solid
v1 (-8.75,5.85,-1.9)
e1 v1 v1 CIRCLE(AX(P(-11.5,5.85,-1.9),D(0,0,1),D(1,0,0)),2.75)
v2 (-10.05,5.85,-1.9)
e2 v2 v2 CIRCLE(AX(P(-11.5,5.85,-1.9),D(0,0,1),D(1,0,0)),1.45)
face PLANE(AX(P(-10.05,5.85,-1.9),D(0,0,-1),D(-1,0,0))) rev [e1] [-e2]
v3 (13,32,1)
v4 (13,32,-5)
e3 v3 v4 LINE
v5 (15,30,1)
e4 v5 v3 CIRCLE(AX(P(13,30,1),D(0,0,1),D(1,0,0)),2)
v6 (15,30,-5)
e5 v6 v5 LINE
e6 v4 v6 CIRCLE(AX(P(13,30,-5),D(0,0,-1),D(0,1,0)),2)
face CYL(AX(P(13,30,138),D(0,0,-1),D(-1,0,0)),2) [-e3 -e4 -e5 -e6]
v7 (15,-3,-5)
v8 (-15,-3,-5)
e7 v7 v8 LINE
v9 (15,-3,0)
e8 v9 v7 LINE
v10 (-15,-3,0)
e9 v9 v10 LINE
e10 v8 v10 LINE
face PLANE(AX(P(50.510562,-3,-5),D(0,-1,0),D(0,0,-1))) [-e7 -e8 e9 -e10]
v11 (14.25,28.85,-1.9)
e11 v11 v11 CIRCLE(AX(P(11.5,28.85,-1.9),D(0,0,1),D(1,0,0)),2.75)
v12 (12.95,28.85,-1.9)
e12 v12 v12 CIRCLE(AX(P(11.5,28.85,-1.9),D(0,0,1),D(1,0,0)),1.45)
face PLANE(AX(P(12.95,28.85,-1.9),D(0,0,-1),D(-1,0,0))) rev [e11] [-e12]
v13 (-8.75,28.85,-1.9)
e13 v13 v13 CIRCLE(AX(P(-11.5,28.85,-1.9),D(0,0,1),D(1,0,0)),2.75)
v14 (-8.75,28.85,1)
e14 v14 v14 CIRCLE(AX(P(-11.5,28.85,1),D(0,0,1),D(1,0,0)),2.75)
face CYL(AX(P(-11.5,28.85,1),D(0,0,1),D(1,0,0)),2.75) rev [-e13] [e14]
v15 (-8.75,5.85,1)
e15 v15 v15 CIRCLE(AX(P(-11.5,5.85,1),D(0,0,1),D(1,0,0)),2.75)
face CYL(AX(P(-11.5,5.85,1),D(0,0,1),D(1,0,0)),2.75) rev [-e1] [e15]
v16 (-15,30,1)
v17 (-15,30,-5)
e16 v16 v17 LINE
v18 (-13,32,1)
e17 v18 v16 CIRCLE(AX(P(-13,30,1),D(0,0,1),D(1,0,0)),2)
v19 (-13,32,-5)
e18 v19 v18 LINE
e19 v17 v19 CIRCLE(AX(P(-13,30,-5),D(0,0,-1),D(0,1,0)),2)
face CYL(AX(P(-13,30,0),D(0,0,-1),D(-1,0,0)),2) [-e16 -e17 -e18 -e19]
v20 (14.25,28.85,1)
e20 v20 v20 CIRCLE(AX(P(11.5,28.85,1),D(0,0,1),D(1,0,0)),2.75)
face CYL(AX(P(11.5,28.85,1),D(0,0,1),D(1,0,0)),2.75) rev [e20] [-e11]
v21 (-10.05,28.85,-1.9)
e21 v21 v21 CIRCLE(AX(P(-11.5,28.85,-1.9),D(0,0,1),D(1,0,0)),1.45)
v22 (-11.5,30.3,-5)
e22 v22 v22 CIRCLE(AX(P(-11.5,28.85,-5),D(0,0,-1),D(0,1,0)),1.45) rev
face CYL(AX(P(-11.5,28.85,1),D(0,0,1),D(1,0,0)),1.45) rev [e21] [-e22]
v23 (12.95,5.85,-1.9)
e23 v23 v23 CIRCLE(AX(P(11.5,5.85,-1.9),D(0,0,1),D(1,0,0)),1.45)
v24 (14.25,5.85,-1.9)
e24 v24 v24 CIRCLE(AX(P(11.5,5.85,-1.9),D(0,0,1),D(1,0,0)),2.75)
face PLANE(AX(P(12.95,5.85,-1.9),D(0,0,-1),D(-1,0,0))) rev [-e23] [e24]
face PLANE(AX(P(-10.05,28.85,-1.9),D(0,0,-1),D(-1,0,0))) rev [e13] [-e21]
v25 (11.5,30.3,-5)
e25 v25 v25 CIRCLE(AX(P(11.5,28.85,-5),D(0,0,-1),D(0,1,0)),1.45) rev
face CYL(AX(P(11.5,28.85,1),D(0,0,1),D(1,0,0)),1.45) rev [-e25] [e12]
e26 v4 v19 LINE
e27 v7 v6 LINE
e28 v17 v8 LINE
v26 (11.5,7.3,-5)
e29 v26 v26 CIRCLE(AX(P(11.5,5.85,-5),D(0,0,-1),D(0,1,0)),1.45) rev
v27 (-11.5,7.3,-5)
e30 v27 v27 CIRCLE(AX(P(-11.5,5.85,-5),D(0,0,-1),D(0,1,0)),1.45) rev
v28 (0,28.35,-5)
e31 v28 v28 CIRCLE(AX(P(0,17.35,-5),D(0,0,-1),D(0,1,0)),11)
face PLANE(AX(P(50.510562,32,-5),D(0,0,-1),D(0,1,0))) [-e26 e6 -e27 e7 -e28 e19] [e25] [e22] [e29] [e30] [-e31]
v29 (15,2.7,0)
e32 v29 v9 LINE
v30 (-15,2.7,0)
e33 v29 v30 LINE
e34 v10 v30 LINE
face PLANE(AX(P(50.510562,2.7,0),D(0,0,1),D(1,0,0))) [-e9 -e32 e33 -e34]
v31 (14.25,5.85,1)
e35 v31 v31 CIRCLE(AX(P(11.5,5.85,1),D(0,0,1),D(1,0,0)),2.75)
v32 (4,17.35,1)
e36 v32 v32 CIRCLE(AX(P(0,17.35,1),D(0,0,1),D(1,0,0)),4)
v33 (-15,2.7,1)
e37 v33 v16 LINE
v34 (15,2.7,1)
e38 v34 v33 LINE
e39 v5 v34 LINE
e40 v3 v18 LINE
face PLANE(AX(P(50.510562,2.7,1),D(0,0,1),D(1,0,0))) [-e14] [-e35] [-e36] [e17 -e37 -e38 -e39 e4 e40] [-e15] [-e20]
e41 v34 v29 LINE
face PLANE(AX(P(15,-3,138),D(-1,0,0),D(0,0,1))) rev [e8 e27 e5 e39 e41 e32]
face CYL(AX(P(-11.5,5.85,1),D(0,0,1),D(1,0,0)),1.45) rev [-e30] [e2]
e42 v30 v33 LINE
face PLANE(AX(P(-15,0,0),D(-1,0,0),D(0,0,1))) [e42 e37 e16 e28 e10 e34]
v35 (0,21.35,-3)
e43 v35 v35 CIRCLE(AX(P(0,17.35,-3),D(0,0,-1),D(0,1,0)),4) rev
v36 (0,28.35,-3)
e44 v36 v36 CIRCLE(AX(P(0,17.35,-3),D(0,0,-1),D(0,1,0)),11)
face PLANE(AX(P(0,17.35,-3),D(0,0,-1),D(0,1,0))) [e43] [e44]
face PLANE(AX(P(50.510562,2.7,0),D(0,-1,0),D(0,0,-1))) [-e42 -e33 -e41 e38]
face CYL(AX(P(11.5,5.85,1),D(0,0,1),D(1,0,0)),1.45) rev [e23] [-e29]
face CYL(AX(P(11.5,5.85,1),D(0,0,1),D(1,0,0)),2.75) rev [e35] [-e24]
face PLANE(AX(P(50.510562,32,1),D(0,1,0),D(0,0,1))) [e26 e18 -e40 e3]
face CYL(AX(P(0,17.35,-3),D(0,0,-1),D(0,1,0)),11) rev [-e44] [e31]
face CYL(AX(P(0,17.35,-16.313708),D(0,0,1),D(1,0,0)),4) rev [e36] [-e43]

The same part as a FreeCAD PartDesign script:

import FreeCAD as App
import Part
import Sketcher

V = App.Vector
Q = App.Units.Quantity


def edges_at(feature, points):
    """Names of the edges that pass closest to the given points."""
    edges = feature.Shape.Edges
    near = lambda p: min(range(len(edges)), key=lambda i: edges[i].distToShape(Part.Vertex(*p))[0])
    return sorted({f"Edge{near(p) + 1}" for p in points})

doc = App.newDocument("Part")
body = doc.addObject("PartDesign::Body", "Body")

# Sketch on YZ plane
sketch1 = doc.addObject("Sketcher::SketchObject", "Sketch")
body.addObject(sketch1)
sketch1.AttachmentSupport = (doc.YZ_Plane, [""])
sketch1.MapMode = "FlatFace"
sketch1.AttachmentOffset = App.Placement(V(0, 0, -15), App.Rotation())
sketch1.addGeometry([
    Part.LineSegment(V(2.7, 1, 0), V(32, 1, 0)),  # 0
    Part.LineSegment(V(32, 1, 0), V(32, -5, 0)),  # 1
    Part.LineSegment(V(32, -5, 0), V(-3, -5, 0)),  # 2
    Part.LineSegment(V(-3, -5, 0), V(-3, 0, 0)),  # 3
    Part.LineSegment(V(-3, 0, 0), V(2.7, 0, 0)),  # 4
    Part.LineSegment(V(2.7, 0, 0), V(2.7, 1, 0)),  # 5
], False)
sketch1.addConstraint([
    Sketcher.Constraint("Coincident", 0, 2, 1, 1),
    Sketcher.Constraint("Coincident", 1, 2, 2, 1),
    Sketcher.Constraint("Coincident", 2, 2, 3, 1),
    Sketcher.Constraint("Coincident", 3, 2, 4, 1),
    Sketcher.Constraint("Coincident", 4, 2, 5, 1),
    Sketcher.Constraint("Coincident", 5, 2, 0, 1),
    Sketcher.Constraint("Horizontal", 0),
    Sketcher.Constraint("Vertical", 1),
    Sketcher.Constraint("Horizontal", 2),
    Sketcher.Constraint("Vertical", 3),
    Sketcher.Constraint("Horizontal", 4),
    Sketcher.Constraint("Vertical", 5),
    Sketcher.Constraint("PointOnObject", 3, 2, -1),
    Sketcher.Constraint("DistanceX", 2, 2, 2, 1, Q("35 mm")),
    Sketcher.Constraint("DistanceY", 1, 2, 1, 1, Q("6 mm")),
    Sketcher.Constraint("DistanceY", 3, 1, 3, 2, Q("5 mm")),
    Sketcher.Constraint("DistanceX", 0, 1, 0, 2, Q("29.3 mm")),
    Sketcher.Constraint("DistanceX", -1, 1, 0, 2, Q("32 mm")),
])
pad1 = doc.addObject("PartDesign::Pad", "Pad")
body.addObject(pad1)
pad1.Profile = sketch1
pad1.Length = 30

# Sketch on XY plane
sketch2 = doc.addObject("Sketcher::SketchObject", "Sketch001")
body.addObject(sketch2)
sketch2.AttachmentSupport = (doc.XY_Plane, [""])
sketch2.MapMode = "FlatFace"
sketch2.AttachmentOffset = App.Placement(V(0, 0, 1), App.Rotation())
sketch2.addGeometry([
    Part.Circle(V(-11.5, 28.9, 0), V(0, 0, 1), 1.4),
    Part.Circle(V(11.5, 28.9, 0), V(0, 0, 1), 1.4),
    Part.Circle(V(11.5, 5.8, 0), V(0, 0, 1), 1.4),
    Part.Circle(V(-11.5, 5.8, 0), V(0, 0, 1), 1.4),
], False)
sketch2.addConstraint([
    Sketcher.Constraint("Equal", 0, 1),
    Sketcher.Constraint("Equal", 1, 2),
    Sketcher.Constraint("Equal", 2, 3),
    Sketcher.Constraint("Symmetric", 0, 3, 1, 3, -2),
    Sketcher.Constraint("Symmetric", 2, 3, 3, 3, -2),
    Sketcher.Constraint("Vertical", 1, 3, 2, 3),
    Sketcher.Constraint("Diameter", 0, Q("2.9 mm")),
    Sketcher.Constraint("DistanceX", 0, 3, 1, 3, Q("23 mm")),
    Sketcher.Constraint("DistanceY", 2, 3, 1, 3, Q("23 mm")),
    Sketcher.Constraint("DistanceY", -1, 1, 0, 3, Q("28.85 mm")),
])
doc.recompute()
hole = doc.addObject("PartDesign::Hole", "Hole")
body.addObject(hole)
hole.Profile = sketch2
hole.ThreadType = "None"
hole.Diameter = 2.9
hole.DepthType = "Dimension"
hole.Depth = 6
hole.DrillPoint = "Angled"
hole.DrillPointAngle = 118
hole.HoleCutType = "Counterbore"
hole.HoleCutDiameter = 5.5
hole.HoleCutDepth = 2.9

# Sketch on XY plane
sketch3 = doc.addObject("Sketcher::SketchObject", "Sketch002")
body.addObject(sketch3)
sketch3.AttachmentSupport = (doc.XY_Plane, [""])
sketch3.MapMode = "FlatFace"
sketch3.AttachmentOffset = App.Placement(V(0, 0, 1), App.Rotation())
sketch3.addGeometry(Part.Circle(V(0, 17.4, 0), V(0, 0, 1), 4), False)
sketch3.addConstraint([
    Sketcher.Constraint("PointOnObject", 0, 3, -2),
    Sketcher.Constraint("Diameter", 0, Q("8 mm")),
    Sketcher.Constraint("DistanceY", -1, 1, 0, 3, Q("17.35 mm")),
])
pocket1 = doc.addObject("PartDesign::Pocket", "Pocket")
body.addObject(pocket1)
pocket1.Profile = sketch3
pocket1.Length = 6

# Sketch on XY plane
sketch4 = doc.addObject("Sketcher::SketchObject", "Sketch003")
body.addObject(sketch4)
sketch4.AttachmentSupport = (doc.XY_Plane, [""])
sketch4.MapMode = "FlatFace"
sketch4.AttachmentOffset = App.Placement(V(0, 0, -5), App.Rotation())
sketch4.addGeometry(Part.Circle(V(0, 17, 0), V(0, 0, 1), 11), False)
sketch4.addConstraint([
    Sketcher.Constraint("PointOnObject", 0, 3, -2),
    Sketcher.Constraint("Diameter", 0, Q("22 mm")),
    Sketcher.Constraint("DistanceY", -1, 1, 0, 3, Q("17.35 mm")),
])
pocket2 = doc.addObject("PartDesign::Pocket", "Pocket001")
body.addObject(pocket2)
pocket2.Profile = sketch4
pocket2.Length = 2
pocket2.Reversed = True
doc.recompute()

fillet = doc.addObject("PartDesign::Fillet", "Fillet")
body.addObject(fillet)
fillet.Base = (pocket2, edges_at(pocket2, [(15, 32, -2), (-15, 32, -2)]))
fillet.Radius = 2

doc.recompute()
